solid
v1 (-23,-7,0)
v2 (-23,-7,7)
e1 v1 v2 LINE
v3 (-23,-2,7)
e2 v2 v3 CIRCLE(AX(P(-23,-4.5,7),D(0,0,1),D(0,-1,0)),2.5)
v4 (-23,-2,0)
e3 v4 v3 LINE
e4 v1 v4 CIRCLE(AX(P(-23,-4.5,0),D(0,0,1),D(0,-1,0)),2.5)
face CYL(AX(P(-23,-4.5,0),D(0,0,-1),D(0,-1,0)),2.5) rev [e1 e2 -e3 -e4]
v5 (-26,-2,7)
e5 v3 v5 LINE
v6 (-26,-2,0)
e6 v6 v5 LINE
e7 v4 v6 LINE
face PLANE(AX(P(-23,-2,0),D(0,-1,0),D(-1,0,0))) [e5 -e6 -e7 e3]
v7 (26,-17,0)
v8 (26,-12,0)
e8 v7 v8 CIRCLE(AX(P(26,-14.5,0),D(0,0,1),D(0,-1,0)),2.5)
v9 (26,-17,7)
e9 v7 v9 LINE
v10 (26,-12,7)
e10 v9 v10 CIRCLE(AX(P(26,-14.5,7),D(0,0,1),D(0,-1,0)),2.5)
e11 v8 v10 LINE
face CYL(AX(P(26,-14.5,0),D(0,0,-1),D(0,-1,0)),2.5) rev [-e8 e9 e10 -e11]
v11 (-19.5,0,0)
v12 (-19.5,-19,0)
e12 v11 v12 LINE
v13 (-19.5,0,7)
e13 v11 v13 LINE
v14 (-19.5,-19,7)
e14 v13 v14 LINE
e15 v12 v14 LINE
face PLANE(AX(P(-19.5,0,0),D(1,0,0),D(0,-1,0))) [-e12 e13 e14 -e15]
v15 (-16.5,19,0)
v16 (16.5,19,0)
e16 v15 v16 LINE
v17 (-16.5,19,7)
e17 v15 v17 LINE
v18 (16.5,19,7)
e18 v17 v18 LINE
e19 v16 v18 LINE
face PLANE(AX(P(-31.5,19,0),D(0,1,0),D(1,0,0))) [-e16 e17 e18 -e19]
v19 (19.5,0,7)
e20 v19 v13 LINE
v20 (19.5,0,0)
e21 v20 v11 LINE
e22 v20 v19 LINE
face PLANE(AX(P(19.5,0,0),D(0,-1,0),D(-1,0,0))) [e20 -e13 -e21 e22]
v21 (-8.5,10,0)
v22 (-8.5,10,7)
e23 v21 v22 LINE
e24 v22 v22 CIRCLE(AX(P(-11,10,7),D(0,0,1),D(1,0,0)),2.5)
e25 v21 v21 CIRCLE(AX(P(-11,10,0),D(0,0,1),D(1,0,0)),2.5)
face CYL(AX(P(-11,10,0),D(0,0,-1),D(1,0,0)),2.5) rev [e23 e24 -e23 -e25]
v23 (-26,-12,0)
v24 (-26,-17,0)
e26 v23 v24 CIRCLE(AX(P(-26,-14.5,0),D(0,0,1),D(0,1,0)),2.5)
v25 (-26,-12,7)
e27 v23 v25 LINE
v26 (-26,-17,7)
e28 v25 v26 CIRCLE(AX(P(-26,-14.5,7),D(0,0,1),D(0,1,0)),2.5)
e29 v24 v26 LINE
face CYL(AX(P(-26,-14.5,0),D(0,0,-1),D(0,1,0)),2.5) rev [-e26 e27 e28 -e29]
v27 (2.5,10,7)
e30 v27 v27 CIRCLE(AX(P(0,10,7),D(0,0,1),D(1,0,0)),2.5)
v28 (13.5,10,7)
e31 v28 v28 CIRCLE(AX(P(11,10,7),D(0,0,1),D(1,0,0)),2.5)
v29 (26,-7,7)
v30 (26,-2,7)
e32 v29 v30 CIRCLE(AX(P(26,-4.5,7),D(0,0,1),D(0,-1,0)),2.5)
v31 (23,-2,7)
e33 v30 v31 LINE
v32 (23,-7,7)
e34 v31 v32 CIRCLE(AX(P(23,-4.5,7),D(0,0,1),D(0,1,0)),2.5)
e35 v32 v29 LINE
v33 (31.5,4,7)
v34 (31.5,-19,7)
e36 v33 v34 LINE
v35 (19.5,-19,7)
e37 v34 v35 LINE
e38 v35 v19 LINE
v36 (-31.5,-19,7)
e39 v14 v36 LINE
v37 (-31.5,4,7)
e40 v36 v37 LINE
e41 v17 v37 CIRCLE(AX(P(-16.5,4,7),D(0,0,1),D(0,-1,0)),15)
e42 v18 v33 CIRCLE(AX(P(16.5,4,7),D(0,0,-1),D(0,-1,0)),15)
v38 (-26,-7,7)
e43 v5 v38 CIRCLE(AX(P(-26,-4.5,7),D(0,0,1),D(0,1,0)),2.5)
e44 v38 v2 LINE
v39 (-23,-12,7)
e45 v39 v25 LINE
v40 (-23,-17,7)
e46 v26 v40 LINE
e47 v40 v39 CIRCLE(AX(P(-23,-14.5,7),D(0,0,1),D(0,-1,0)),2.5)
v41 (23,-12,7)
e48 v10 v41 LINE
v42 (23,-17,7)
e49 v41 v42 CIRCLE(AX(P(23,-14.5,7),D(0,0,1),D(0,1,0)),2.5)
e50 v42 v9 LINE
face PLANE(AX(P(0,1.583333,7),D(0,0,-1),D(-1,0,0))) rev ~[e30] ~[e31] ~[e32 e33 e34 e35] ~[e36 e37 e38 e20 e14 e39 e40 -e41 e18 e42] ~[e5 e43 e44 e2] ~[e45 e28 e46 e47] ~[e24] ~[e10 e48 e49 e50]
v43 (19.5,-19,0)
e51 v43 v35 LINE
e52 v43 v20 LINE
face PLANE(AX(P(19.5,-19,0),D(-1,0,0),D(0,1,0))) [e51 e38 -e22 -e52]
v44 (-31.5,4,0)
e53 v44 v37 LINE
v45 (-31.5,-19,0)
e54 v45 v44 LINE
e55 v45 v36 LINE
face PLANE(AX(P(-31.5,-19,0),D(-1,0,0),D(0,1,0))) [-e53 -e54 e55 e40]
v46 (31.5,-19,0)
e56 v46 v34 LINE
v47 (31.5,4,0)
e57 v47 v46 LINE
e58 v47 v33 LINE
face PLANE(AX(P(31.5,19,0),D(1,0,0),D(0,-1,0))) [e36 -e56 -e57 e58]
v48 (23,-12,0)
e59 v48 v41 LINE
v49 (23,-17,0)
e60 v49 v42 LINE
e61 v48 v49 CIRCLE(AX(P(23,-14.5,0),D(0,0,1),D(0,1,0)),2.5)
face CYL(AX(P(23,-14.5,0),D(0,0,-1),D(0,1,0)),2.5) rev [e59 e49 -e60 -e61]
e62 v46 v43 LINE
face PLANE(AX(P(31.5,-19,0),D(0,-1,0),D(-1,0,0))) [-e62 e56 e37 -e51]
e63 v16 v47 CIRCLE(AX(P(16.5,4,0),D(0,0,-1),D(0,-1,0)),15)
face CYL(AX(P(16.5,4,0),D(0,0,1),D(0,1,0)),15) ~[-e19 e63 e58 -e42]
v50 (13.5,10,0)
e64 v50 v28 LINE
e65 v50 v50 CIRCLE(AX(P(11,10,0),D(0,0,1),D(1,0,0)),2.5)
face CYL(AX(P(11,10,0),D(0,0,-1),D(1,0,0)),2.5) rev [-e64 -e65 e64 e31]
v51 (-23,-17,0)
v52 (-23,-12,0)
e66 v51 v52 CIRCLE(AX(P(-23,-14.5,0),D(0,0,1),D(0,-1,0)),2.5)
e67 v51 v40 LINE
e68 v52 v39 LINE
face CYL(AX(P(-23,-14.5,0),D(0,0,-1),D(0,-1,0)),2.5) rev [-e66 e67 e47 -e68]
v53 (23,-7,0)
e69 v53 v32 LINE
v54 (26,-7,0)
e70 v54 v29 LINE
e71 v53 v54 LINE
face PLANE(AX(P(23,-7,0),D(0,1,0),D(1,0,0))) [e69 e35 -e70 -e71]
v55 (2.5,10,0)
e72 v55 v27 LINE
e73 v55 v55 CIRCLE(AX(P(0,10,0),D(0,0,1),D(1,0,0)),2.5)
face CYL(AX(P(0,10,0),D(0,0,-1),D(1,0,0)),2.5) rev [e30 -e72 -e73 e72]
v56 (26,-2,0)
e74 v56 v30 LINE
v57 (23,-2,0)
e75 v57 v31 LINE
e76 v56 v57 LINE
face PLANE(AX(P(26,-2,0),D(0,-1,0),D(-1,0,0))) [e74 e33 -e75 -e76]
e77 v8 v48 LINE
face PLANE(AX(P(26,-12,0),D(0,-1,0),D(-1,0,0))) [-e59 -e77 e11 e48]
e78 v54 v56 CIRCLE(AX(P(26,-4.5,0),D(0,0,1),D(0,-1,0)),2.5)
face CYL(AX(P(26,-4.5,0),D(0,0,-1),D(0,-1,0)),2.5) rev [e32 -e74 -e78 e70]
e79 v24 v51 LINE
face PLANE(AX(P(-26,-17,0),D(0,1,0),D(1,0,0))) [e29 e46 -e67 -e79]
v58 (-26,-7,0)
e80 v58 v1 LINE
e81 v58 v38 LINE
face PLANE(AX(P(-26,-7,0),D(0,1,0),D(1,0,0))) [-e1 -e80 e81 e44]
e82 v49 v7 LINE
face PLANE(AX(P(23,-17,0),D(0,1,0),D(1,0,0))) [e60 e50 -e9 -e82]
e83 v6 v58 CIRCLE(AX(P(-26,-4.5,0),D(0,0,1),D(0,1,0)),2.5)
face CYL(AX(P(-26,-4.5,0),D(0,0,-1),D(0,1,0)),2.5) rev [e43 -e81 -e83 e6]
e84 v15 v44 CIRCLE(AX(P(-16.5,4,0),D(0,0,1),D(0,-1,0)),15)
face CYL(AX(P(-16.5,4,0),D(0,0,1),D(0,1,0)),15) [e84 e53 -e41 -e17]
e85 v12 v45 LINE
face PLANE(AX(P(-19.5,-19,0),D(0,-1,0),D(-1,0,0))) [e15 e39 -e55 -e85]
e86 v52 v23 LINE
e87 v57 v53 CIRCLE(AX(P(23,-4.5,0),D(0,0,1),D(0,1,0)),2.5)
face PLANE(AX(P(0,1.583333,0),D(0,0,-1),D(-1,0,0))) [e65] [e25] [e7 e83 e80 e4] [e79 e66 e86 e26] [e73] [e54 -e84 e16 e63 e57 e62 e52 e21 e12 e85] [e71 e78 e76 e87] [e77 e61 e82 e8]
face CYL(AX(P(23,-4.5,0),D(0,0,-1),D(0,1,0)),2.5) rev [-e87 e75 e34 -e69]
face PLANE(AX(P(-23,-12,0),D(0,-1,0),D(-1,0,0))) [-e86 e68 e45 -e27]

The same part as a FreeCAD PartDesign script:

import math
import FreeCAD as App
import Part
import Sketcher

V = App.Vector
Q = App.Units.Quantity


def edges_at(feature, points):
    """Names of the edges that pass closest to the given points."""
    edges = feature.Shape.Edges
    near = lambda p: min(range(len(edges)), key=lambda i: edges[i].distToShape(Part.Vertex(*p))[0])
    return sorted({f"Edge{near(p) + 1}" for p in points})

doc = App.newDocument("Part")
body = doc.addObject("PartDesign::Body", "Body")

# Sketch on XY plane
sketch1 = body.newObject("Sketcher::SketchObject", "Sketch")
sketch1.AttachmentSupport = (doc.getObject("XY_Plane"), [""])
sketch1.MapMode = "FlatFace"
sketch1.addGeometry([
    Part.LineSegment(V(31.5, 19, 0), V(-31.5, 19, 0)),  # 0
    Part.LineSegment(V(-31.5, 19, 0), V(-31.5, -19, 0)),  # 1
    Part.LineSegment(V(-31.5, -19, 0), V(-19.5, -19, 0)),  # 2
    Part.LineSegment(V(-19.5, -19, 0), V(-19.5, 0, 0)),  # 3
    Part.LineSegment(V(-19.5, 0, 0), V(19.5, 0, 0)),  # 4
    Part.LineSegment(V(19.5, 0, 0), V(19.5, -19, 0)),  # 5
    Part.LineSegment(V(19.5, -19, 0), V(31.5, -19, 0)),  # 6
    Part.LineSegment(V(31.5, -19, 0), V(31.5, 19, 0)),  # 7
    Part.LineSegment(V(23, -12, 0), V(26, -12, 0)),  # 8
    Part.ArcOfCircle(Part.Circle(V(26, -14.5, 0), V(0, 0, 1), 2.5), math.radians(-90), math.radians(90)),  # 9
    Part.LineSegment(V(26, -17, 0), V(23, -17, 0)),  # 10
    Part.ArcOfCircle(Part.Circle(V(23, -14.5, 0), V(0, 0, 1), 2.5), math.radians(90), math.radians(270)),  # 11
    Part.LineSegment(V(23, -2, 0), V(26, -2, 0)),  # 12
    Part.ArcOfCircle(Part.Circle(V(26, -4.5, 0), V(0, 0, 1), 2.5), math.radians(-90), math.radians(90)),  # 13
    Part.LineSegment(V(26, -7, 0), V(23, -7, 0)),  # 14
    Part.ArcOfCircle(Part.Circle(V(23, -4.5, 0), V(0, 0, 1), 2.5), math.radians(90), math.radians(270)),  # 15
    Part.LineSegment(V(-26, -12, 0), V(-23, -12, 0)),  # 16
    Part.ArcOfCircle(Part.Circle(V(-23, -14.5, 0), V(0, 0, 1), 2.5), math.radians(-90), math.radians(90)),  # 17
    Part.LineSegment(V(-23, -17, 0), V(-26, -17, 0)),  # 18
    Part.ArcOfCircle(Part.Circle(V(-26, -14.5, 0), V(0, 0, 1), 2.5), math.radians(90), math.radians(270)),  # 19
    Part.LineSegment(V(-26, -2, 0), V(-23, -2, 0)),  # 20
    Part.ArcOfCircle(Part.Circle(V(-23, -4.5, 0), V(0, 0, 1), 2.5), math.radians(-90), math.radians(90)),  # 21
    Part.LineSegment(V(-23, -7, 0), V(-26, -7, 0)),  # 22
    Part.ArcOfCircle(Part.Circle(V(-26, -4.5, 0), V(0, 0, 1), 2.5), math.radians(90), math.radians(270)),  # 23
    Part.Circle(V(11, 10, 0), V(0, 0, 1), 2.5),  # 24
    Part.Circle(V(0, 10, 0), V(0, 0, 1), 2.5),  # 25
    Part.Circle(V(-11, 10, 0), V(0, 0, 1), 2.5),  # 26
], False)
sketch1.addConstraint([
    Sketcher.Constraint("Coincident", 0, 2, 1, 1),
    Sketcher.Constraint("Coincident", 1, 2, 2, 1),
    Sketcher.Constraint("Coincident", 2, 2, 3, 1),
    Sketcher.Constraint("Coincident", 3, 2, 4, 1),
    Sketcher.Constraint("Coincident", 4, 2, 5, 1),
    Sketcher.Constraint("Coincident", 5, 2, 6, 1),
    Sketcher.Constraint("Coincident", 6, 2, 7, 1),
    Sketcher.Constraint("Coincident", 7, 2, 0, 1),
    Sketcher.Constraint("Tangent", 8, 2, 9, 2),
    Sketcher.Constraint("Tangent", 9, 1, 10, 1),
    Sketcher.Constraint("Tangent", 10, 2, 11, 2),
    Sketcher.Constraint("Tangent", 11, 1, 8, 1),
    Sketcher.Constraint("Tangent", 12, 2, 13, 2),
    Sketcher.Constraint("Tangent", 13, 1, 14, 1),
    Sketcher.Constraint("Tangent", 14, 2, 15, 2),
    Sketcher.Constraint("Tangent", 15, 1, 12, 1),
    Sketcher.Constraint("Tangent", 16, 2, 17, 2),
    Sketcher.Constraint("Tangent", 17, 1, 18, 1),
    Sketcher.Constraint("Tangent", 18, 2, 19, 2),
    Sketcher.Constraint("Tangent", 19, 1, 16, 1),
    Sketcher.Constraint("Tangent", 20, 2, 21, 2),
    Sketcher.Constraint("Tangent", 21, 1, 22, 1),
    Sketcher.Constraint("Tangent", 22, 2, 23, 2),
    Sketcher.Constraint("Tangent", 23, 1, 20, 1),
    Sketcher.Constraint("Horizontal", 0),
    Sketcher.Constraint("Vertical", 1),
    Sketcher.Constraint("Horizontal", 2),
    Sketcher.Constraint("Vertical", 3),
    Sketcher.Constraint("Horizontal", 4),
    Sketcher.Constraint("Vertical", 5),
    Sketcher.Constraint("Horizontal", 6),
    Sketcher.Constraint("Vertical", 7),
    Sketcher.Constraint("Horizontal", 8),
    Sketcher.Constraint("Horizontal", 10),
    Sketcher.Constraint("Horizontal", 12),
    Sketcher.Constraint("Horizontal", 14),
    Sketcher.Constraint("Horizontal", 16),
    Sketcher.Constraint("Horizontal", 18),
    Sketcher.Constraint("Horizontal", 20),
    Sketcher.Constraint("Horizontal", 22),
    Sketcher.Constraint("Equal", 11, 13),
    Sketcher.Constraint("Equal", 15, 17),
    Sketcher.Constraint("Equal", 19, 21),
    Sketcher.Constraint("Equal", 23, 24),
    Sketcher.Constraint("Equal", 24, 25),
    Sketcher.Constraint("Equal", 25, 26),
    Sketcher.Constraint("Symmetric", 3, 2, 4, 2, -1, 1),
    Sketcher.Constraint("Symmetric", 0, 2, 6, 2, -1, 1),
    Sketcher.Constraint("Symmetric", 11, 3, 17, 3, -2),
    Sketcher.Constraint("Symmetric", 15, 3, 21, 3, -2),
    Sketcher.Constraint("Symmetric", 24, 3, 26, 3, -2),
    Sketcher.Constraint("PointOnObject", 25, 3, -2),
    Sketcher.Constraint("Horizontal", 24, 3, 25, 3),
    Sketcher.Constraint("Horizontal", 2, 2, 5, 2),
    Sketcher.Constraint("Vertical", 9, 3, 13, 3),
    Sketcher.Constraint("Vertical", 11, 3, 15, 3),
    Sketcher.Constraint("Vertical", 19, 3, 23, 3),
    Sketcher.Constraint("Equal", 14, 16),
    Sketcher.Constraint("Diameter", 24, Q("5 mm")),
    Sketcher.Constraint("DistanceX", 0, 2, 0, 1, Q("63 mm")),
    Sketcher.Constraint("DistanceX", 2, 1, 2, 2, Q("12 mm")),
    Sketcher.Constraint("DistanceX", 8, 1, 8, 2, Q("3 mm")),
    Sketcher.Constraint("DistanceY", 1, 2, 1, 1, Q("38 mm")),
    Sketcher.Constraint("DistanceX", -1, 1, 9, 3, Q("26 mm")),
    Sketcher.Constraint("DistanceX", -1, 1, 24, 3, Q("11 mm")),
    Sketcher.Constraint("DistanceY", -1, 1, 24, 3, Q("10 mm")),
    Sketcher.Constraint("DistanceY", 8, 2, -1, 1, Q("12 mm")),
    Sketcher.Constraint("DistanceY", 12, 2, -1, 1, Q("2 mm")),
])
pad1 = body.newObject("PartDesign::Pad", "Pad")
pad1.Profile = sketch1
pad1.Length = 7
doc.recompute()

fillet = body.newObject("PartDesign::Fillet", "Fillet")
fillet.Base = (pad1, edges_at(pad1, [(-31.5, 19, 3.5)]))
fillet.Radius = 15
doc.recompute()

fillet2 = body.newObject("PartDesign::Fillet", "Fillet001")
fillet2.Base = (fillet, edges_at(fillet, [(31.5, 19, 3.5)]))
fillet2.Radius = 15

doc.recompute()
